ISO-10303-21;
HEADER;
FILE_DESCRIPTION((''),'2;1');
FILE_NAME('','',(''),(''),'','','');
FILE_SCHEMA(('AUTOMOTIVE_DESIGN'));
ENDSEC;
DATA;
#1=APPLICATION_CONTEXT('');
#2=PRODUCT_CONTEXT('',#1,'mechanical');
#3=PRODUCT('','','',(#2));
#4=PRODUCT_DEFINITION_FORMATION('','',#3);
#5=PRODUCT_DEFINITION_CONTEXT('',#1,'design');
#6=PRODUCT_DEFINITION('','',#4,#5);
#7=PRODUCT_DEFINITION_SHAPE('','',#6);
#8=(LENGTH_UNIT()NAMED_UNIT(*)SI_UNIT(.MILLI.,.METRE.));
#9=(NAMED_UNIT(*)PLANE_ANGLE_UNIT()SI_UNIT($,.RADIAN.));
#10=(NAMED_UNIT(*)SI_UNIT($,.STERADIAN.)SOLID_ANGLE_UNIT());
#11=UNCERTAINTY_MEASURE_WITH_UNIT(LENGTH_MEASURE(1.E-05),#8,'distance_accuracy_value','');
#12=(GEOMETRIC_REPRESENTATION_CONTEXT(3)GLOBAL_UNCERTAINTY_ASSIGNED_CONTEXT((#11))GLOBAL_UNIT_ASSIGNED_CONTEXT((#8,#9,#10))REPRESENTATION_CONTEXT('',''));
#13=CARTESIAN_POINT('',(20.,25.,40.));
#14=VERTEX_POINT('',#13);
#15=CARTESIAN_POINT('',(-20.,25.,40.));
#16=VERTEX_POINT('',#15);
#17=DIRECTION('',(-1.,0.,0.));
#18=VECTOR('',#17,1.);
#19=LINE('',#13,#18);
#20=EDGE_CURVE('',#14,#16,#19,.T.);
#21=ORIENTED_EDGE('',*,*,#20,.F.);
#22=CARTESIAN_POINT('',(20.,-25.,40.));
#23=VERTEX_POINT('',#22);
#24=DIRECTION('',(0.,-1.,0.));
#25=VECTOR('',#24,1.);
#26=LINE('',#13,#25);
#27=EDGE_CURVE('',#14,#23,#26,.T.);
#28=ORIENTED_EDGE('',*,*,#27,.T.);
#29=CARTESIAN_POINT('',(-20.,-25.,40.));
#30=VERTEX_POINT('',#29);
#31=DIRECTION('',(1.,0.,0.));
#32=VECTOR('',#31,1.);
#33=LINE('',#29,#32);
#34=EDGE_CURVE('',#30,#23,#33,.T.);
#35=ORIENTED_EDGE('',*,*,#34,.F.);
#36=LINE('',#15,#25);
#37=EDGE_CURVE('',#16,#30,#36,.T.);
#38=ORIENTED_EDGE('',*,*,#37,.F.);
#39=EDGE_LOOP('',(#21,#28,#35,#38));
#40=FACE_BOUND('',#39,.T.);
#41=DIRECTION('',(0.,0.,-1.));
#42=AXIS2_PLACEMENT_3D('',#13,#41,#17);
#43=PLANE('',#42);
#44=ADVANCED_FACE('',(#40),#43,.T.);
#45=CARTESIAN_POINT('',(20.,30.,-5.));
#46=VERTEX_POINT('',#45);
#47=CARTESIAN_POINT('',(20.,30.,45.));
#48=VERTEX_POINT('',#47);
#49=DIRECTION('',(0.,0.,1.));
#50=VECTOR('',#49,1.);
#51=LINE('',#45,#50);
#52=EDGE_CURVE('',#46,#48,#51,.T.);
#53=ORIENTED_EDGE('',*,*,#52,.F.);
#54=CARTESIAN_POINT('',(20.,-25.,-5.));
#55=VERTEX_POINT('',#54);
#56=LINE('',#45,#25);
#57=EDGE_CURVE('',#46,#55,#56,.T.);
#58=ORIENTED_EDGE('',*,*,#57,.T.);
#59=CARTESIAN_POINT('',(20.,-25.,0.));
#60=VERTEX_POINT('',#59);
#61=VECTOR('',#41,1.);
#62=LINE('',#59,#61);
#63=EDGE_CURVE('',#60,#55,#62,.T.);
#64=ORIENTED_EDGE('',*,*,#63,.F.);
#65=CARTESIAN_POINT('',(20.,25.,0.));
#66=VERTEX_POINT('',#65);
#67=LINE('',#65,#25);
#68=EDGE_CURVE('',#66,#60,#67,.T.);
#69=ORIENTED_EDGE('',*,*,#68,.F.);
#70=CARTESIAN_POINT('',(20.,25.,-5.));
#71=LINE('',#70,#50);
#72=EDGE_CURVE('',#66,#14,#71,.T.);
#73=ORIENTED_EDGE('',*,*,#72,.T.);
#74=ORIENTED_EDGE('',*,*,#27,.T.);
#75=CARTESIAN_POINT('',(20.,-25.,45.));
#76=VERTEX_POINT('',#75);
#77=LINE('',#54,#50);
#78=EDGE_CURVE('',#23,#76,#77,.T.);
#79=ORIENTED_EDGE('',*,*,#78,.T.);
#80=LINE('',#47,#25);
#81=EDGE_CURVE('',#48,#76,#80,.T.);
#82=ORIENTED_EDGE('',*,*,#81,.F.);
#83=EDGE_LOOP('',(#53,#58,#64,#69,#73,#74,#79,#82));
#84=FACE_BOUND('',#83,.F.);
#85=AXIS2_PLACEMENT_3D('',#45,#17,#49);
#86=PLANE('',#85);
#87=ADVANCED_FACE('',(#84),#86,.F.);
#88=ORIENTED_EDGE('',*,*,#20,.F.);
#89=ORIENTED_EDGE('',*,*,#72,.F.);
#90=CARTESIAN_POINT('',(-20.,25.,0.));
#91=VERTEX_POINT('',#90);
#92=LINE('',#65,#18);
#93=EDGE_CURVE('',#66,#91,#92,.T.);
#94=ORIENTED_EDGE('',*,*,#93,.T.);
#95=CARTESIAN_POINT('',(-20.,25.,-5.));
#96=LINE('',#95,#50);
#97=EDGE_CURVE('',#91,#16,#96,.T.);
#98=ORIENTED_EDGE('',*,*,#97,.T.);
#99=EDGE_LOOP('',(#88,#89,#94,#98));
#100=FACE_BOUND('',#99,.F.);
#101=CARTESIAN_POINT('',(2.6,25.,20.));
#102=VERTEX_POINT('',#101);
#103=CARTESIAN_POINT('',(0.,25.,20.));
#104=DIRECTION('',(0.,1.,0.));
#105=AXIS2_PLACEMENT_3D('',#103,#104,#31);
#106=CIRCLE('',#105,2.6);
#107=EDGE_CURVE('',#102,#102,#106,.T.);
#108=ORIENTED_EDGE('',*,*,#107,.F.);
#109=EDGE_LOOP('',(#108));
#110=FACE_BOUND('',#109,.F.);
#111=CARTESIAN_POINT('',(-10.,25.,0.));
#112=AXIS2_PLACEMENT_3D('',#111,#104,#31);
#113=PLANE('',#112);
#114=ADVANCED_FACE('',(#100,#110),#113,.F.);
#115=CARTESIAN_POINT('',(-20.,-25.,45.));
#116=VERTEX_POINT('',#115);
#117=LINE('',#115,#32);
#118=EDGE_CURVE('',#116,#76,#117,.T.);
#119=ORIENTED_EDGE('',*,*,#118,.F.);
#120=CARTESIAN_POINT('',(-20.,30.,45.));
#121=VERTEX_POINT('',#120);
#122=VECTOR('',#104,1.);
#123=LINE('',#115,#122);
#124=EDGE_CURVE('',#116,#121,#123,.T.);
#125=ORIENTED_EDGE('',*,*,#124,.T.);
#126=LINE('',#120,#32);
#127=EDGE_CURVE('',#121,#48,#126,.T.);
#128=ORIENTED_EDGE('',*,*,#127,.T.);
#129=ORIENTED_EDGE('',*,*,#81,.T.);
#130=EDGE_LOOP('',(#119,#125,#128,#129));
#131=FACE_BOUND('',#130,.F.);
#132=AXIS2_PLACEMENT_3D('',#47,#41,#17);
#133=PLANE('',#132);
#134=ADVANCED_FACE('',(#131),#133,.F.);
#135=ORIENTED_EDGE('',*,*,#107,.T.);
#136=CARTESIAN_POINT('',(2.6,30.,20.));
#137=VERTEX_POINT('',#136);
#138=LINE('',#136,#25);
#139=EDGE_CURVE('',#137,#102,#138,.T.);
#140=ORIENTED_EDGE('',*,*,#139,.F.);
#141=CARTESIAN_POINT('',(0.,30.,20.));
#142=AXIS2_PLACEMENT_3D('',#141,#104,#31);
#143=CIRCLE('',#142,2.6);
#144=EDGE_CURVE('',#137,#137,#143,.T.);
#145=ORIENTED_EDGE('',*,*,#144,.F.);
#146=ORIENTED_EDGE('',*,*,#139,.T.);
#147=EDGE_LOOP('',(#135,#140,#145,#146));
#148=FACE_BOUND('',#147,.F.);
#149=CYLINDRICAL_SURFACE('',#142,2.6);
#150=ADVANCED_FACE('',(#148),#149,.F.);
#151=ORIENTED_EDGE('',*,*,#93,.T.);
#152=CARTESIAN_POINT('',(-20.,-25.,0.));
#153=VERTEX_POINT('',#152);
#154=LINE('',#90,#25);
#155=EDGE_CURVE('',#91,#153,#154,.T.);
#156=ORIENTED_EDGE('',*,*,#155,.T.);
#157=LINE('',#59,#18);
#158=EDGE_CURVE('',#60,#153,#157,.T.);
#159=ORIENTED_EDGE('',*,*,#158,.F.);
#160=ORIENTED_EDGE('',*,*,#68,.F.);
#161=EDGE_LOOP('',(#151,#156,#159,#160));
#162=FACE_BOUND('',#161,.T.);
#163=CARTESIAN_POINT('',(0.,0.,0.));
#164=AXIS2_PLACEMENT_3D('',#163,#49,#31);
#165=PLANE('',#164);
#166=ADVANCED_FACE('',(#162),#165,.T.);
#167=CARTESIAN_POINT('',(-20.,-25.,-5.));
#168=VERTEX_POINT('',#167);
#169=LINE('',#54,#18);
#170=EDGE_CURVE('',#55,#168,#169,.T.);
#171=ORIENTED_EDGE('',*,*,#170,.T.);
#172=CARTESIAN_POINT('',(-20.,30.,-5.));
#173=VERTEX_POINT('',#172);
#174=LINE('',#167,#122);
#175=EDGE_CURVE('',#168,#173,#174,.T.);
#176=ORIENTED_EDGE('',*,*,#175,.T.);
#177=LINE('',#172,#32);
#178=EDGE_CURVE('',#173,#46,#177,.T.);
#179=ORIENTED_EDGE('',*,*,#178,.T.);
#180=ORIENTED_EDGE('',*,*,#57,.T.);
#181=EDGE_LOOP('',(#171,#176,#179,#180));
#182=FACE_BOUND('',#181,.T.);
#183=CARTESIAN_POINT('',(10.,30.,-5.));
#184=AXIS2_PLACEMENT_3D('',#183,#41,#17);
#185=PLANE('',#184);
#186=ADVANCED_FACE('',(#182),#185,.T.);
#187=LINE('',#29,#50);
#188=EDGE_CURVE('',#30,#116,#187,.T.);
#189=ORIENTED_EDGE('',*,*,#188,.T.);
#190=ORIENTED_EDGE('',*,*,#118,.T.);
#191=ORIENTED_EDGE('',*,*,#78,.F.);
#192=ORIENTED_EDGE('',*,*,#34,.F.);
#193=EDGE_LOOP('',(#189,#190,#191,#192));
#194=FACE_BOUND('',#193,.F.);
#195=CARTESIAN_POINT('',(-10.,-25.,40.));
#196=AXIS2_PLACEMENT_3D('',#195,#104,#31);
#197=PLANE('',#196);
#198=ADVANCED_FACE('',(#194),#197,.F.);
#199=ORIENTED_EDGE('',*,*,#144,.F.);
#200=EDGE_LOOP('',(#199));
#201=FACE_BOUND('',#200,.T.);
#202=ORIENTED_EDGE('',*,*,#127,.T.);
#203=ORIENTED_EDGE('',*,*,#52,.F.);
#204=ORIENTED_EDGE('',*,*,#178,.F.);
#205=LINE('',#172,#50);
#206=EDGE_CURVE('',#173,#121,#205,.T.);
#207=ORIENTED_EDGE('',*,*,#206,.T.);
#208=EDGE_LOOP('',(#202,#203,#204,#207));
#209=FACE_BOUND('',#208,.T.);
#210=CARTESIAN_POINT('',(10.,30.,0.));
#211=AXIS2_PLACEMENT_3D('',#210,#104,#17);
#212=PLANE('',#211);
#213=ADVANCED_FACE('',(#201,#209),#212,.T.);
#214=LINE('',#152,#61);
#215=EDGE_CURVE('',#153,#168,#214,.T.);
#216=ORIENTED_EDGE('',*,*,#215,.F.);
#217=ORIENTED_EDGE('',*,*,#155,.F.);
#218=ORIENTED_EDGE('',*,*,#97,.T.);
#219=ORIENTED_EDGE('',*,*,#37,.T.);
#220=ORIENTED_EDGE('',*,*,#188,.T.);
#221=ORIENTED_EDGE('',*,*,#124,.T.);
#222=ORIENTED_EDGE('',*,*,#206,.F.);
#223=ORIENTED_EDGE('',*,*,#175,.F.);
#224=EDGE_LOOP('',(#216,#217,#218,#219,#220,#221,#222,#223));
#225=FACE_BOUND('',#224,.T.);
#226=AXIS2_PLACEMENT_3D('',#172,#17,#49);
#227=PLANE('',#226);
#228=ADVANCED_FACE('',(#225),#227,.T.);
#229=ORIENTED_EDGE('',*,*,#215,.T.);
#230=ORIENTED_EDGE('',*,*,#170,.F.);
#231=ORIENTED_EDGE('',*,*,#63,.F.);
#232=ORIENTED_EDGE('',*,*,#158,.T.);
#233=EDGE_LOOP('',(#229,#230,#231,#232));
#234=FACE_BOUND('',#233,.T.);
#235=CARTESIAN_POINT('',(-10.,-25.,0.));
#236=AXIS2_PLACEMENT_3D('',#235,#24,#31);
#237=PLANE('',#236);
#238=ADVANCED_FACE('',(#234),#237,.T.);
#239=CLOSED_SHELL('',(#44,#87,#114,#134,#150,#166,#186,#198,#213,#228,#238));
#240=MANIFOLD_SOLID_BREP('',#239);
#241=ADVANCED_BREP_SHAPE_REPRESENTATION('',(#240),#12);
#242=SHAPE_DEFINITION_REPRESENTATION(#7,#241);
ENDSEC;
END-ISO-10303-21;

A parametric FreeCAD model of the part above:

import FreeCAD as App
import Part
import Sketcher

V = App.Vector
Q = App.Units.Quantity


def add_polygon(sketch, points):
    """Adds a closed chain of lines whose ends are joined by coincident constraints."""
    first, n = sketch.GeometryCount, len(points)
    for a, b in zip(points, points[1:] + points[:1]):
        sketch.addGeometry(Part.LineSegment(App.Vector(*a, 0), App.Vector(*b, 0)), False)
    for i in range(n):
        sketch.addConstraint(Sketcher.Constraint("Coincident", first + i, 2, first + (i + 1) % n, 1))

doc = App.newDocument("Part")
body = doc.addObject("PartDesign::Body", "Body")
body.AllowCompound = True

# Sketch on XZ plane
sketch1 = body.newObject("Sketcher::SketchObject", "Sketch")
sketch1.AttachmentSupport = (doc.getObject("XZ_Plane"), [""])
sketch1.MapMode = "FlatFace"
sketch1.AttachmentOffset = App.Placement(V(0, 0, -25), App.Rotation())
add_polygon(sketch1, [(10, 40), (10, 0), (-10, 0), (-10, 40)])  # lines 0-3
sketch1.addConstraint([
    Sketcher.Constraint("Vertical", 0),
    Sketcher.Constraint("Horizontal", 1),
    Sketcher.Constraint("Vertical", 2),
    Sketcher.Constraint("Horizontal", 3),
    Sketcher.Constraint("Symmetric", 0, 2, 1, 2, -1, 1),
    Sketcher.Constraint("DistanceY", 0, 2, 0, 1, Q("40 mm")),
    Sketcher.Constraint("DistanceX", 1, 2, 1, 1, Q("20 mm")),
])
pad1 = body.newObject("PartDesign::Pad", "Pad")
pad1.Profile = sketch1
pad1.Length = 5
pad1.Reversed = True

# Sketch on XY plane
sketch2 = body.newObject("Sketcher::SketchObject", "Sketch001")
sketch2.AttachmentSupport = (doc.getObject("XY_Plane"), [""])
sketch2.MapMode = "FlatFace"
sketch2.AttachmentOffset = App.Placement(V(0, 0, 40), App.Rotation())
add_polygon(sketch2, [(-10, -25), (10, -25), (10, 30), (-10, 30)])  # lines 0-3
sketch2.addConstraint([
    Sketcher.Constraint("Horizontal", 0),
    Sketcher.Constraint("Vertical", 1),
    Sketcher.Constraint("Horizontal", 2),
    Sketcher.Constraint("Vertical", 3),
    Sketcher.Constraint("DistanceX", 0, 1, 0, 2, Q("20 mm")),
    Sketcher.Constraint("DistanceY", 1, 1, 1, 2, Q("55 mm")),
    Sketcher.Constraint("DistanceX", -1, 1, 0, 2, Q("10 mm")),
    Sketcher.Constraint("DistanceY", 0, 2, -1, 1, Q("25 mm")),
])
pad2 = body.newObject("PartDesign::Pad", "Pad001")
pad2.Profile = sketch2
pad2.Length = 5

# Sketch on XY plane
sketch3 = body.newObject("Sketcher::SketchObject", "Sketch002")
sketch3.AttachmentSupport = (doc.getObject("XY_Plane"), [""])
sketch3.MapMode = "FlatFace"
add_polygon(sketch3, [(-10, 25), (-10, -25), (10, -25), (10, 25)])  # lines 0-3
sketch3.addConstraint([
    Sketcher.Constraint("Vertical", 0),
    Sketcher.Constraint("Horizontal", 1),
    Sketcher.Constraint("Vertical", 2),
    Sketcher.Constraint("Horizontal", 3),
    Sketcher.Constraint("Symmetric", 0, 2, 2, 2, -1, 1),
    Sketcher.Constraint("DistanceX", 1, 1, 1, 2, Q("20 mm")),
    Sketcher.Constraint("DistanceY", 0, 2, 0, 1, Q("50 mm")),
])
pad3 = body.newObject("PartDesign::Pad", "Pad002")
pad3.Profile = sketch3
pad3.Length = 5
pad3.Reversed = True

# Sketch on XY plane
sketch4 = body.newObject("Sketcher::SketchObject", "Sketch003")
sketch4.AttachmentSupport = (doc.getObject("XY_Plane"), [""])
sketch4.MapMode = "FlatFace"
add_polygon(sketch4, [(10, 30), (10, 25), (-10, 25), (-10, 30)])  # lines 0-3
sketch4.addConstraint([
    Sketcher.Constraint("Vertical", 0),
    Sketcher.Constraint("Horizontal", 1),
    Sketcher.Constraint("Vertical", 2),
    Sketcher.Constraint("Horizontal", 3),
    Sketcher.Constraint("DistanceX", 1, 2, 1, 1, Q("20 mm")),
    Sketcher.Constraint("DistanceY", 0, 2, 0, 1, Q("5 mm")),
    Sketcher.Constraint("DistanceX", -1, 1, 0, 2, Q("10 mm")),
    Sketcher.Constraint("DistanceY", -1, 1, 0, 2, Q("25 mm")),
])
pad4 = body.newObject("PartDesign::Pad", "Pad003")
pad4.Profile = sketch4
pad4.Length = 5
pad4.Reversed = True

# Sketch on XZ plane
sketch5 = body.newObject("Sketcher::SketchObject", "Sketch004")
sketch5.AttachmentSupport = (doc.getObject("XZ_Plane"), [""])
sketch5.MapMode = "FlatFace"
sketch5.AttachmentOffset = App.Placement(V(0, 0, -30), App.Rotation())
sketch5.addGeometry(Part.Circle(V(0, 20, 0), V(0, 0, 1), 2.6), False)
sketch5.addConstraint([
    Sketcher.Constraint("PointOnObject", 0, 3, -2),
    Sketcher.Constraint("Diameter", 0, Q("5.2 mm")),
    Sketcher.Constraint("DistanceY", -1, 1, 0, 3, Q("20 mm")),
])
pocket1 = body.newObject("PartDesign::Pocket", "Pocket")
pocket1.Profile = sketch5
pocket1.Length = 10
pocket1.Reversed = True

# Sketch on XZ plane
sketch6 = body.newObject("Sketcher::SketchObject", "Sketch005")
sketch6.AttachmentSupport = (doc.getObject("XZ_Plane"), [""])
sketch6.MapMode = "FlatFace"
sketch6.AttachmentOffset = App.Placement(V(0, 0, -30), App.Rotation())
add_polygon(sketch6, [(-10, 45), (-10, -5), (-20, -5), (-20, 45)])  # lines 0-3
add_polygon(sketch6, [(10, -5), (10, 45), (20, 45), (20, -5)])  # lines 4-7
sketch6.addConstraint([
    Sketcher.Constraint("Vertical", 0),
    Sketcher.Constraint("Horizontal", 1),
    Sketcher.Constraint("Vertical", 2),
    Sketcher.Constraint("Horizontal", 3),
    Sketcher.Constraint("Vertical", 4),
    Sketcher.Constraint("Horizontal", 5),
    Sketcher.Constraint("Vertical", 6),
    Sketcher.Constraint("Horizontal", 7),
    Sketcher.Constraint("Symmetric", 3, 2, 4, 2, -2),
    Sketcher.Constraint("Symmetric", 1, 2, 6, 2, -2),
    Sketcher.Constraint("DistanceX", 1, 2, 1, 1, Q("10 mm")),
    Sketcher.Constraint("DistanceY", 0, 2, 0, 1, Q("50 mm")),
    Sketcher.Constraint("DistanceX", 0, 2, -1, 1, Q("10 mm")),
    Sketcher.Constraint("DistanceY", 0, 2, -1, 1, Q("5 mm")),
])
pad5 = body.newObject("PartDesign::Pad", "Pad004")
pad5.Profile = sketch6
pad5.Length = 5

# Sketch on XZ plane
sketch7 = body.newObject("Sketcher::SketchObject", "Sketch006")
sketch7.AttachmentSupport = (doc.getObject("XZ_Plane"), [""])
sketch7.MapMode = "FlatFace"
sketch7.AttachmentOffset = App.Placement(V(0, 0, -25), App.Rotation())
add_polygon(sketch7, [(10, 0), (10, -5), (20, -5), (20, 0)])  # lines 0-3
add_polygon(sketch7, [(-10, 40), (-10, 45), (-20, 45), (-20, 40)])  # lines 4-7
add_polygon(sketch7, [(10, 40), (20, 40), (20, 45), (10, 45)])  # lines 8-11
add_polygon(sketch7, [(-20, -5), (-10, -5), (-10, 0), (-20, 0)])  # lines 12-15
sketch7.addConstraint([
    Sketcher.Constraint("Vertical", 0),
    Sketcher.Constraint("Horizontal", 1),
    Sketcher.Constraint("Vertical", 2),
    Sketcher.Constraint("Horizontal", 3),
    Sketcher.Constraint("Vertical", 4),
    Sketcher.Constraint("Horizontal", 5),
    Sketcher.Constraint("Vertical", 6),
    Sketcher.Constraint("Horizontal", 7),
    Sketcher.Constraint("Horizontal", 8),
    Sketcher.Constraint("Vertical", 9),
    Sketcher.Constraint("Horizontal", 10),
    Sketcher.Constraint("Vertical", 11),
    Sketcher.Constraint("Horizontal", 12),
    Sketcher.Constraint("Vertical", 13),
    Sketcher.Constraint("Horizontal", 14),
    Sketcher.Constraint("Vertical", 15),
    Sketcher.Constraint("Symmetric", 3, 2, 13, 2, -1, 1),
    Sketcher.Constraint("Symmetric", 6, 2, 8, 2, -2),
    Sketcher.Constraint("Symmetric", 4, 2, 10, 2, -2),
    Sketcher.Constraint("Symmetric", 2, 2, 14, 2, -2),
    Sketcher.Constraint("Horizontal", 1, 2, 12, 2),
    Sketcher.Constraint("Vertical", 2, 2, 8, 2),
    Sketcher.Constraint("Vertical", 3, 2, 10, 2),
    Sketcher.Constraint("Equal", 2, 4),
    Sketcher.Constraint("DistanceY", 0, 2, 0, 1, Q("5 mm")),
    Sketcher.Constraint("DistanceX", 1, 1, 1, 2, Q("10 mm")),
    Sketcher.Constraint("DistanceX", -1, 1, 0, 2, Q("10 mm")),
    Sketcher.Constraint("DistanceY", -1, 1, 4, 2, Q("45 mm")),
])
pad6 = body.newObject("PartDesign::Pad", "Pad005")
pad6.Profile = sketch7
pad6.Length = 50

doc.recompute()
